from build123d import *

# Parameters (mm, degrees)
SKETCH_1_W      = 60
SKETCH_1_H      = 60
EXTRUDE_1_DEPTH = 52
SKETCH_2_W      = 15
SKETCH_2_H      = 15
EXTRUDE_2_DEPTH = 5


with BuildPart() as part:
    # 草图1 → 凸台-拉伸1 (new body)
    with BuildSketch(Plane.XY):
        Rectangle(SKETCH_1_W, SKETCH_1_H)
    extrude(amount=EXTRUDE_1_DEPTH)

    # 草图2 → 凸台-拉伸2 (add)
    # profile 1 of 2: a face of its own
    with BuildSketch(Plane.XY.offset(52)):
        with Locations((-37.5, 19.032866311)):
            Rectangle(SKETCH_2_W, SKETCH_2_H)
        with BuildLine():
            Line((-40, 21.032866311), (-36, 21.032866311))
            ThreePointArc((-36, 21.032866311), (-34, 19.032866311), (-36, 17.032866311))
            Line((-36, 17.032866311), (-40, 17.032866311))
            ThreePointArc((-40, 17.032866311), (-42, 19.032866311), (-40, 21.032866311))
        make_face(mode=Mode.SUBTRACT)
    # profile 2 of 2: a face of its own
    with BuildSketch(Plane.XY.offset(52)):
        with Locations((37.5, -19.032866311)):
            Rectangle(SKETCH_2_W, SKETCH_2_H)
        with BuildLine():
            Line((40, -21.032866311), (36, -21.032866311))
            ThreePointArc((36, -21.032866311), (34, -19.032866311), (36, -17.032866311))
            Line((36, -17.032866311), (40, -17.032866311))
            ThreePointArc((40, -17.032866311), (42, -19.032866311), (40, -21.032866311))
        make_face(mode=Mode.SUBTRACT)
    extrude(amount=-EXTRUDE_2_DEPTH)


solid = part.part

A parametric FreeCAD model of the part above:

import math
import FreeCAD as App
import Part
import Sketcher
from FreeCAD import Vector

doc = App.newDocument("Part")
body = doc.addObject("PartDesign::Body", "Body")

sketch1 = doc.addObject("Sketcher::SketchObject", "Sketch")
body.addObject(sketch1)
sketch1.AttachmentSupport = (doc.XY_Plane, [""])
sketch1.MapMode = "FlatFace"
sketch1.addGeometry([
    Part.LineSegment(Vector(-30, 30, 0), Vector(-30, -30, 0)),
    Part.LineSegment(Vector(-30, -30, 0), Vector(30, -30, 0)),
    Part.LineSegment(Vector(30, -30, 0), Vector(30, 30, 0)),
    Part.LineSegment(Vector(30, 30, 0), Vector(-30, 30, 0)),
], False)
sketch1.addConstraint([
    Sketcher.Constraint("Coincident", 0, 2, 1, 1),
    Sketcher.Constraint("Coincident", 1, 2, 2, 1),
    Sketcher.Constraint("Coincident", 2, 2, 3, 1),
    Sketcher.Constraint("Coincident", 3, 2, 0, 1),
    Sketcher.Constraint("Vertical", 0),
    Sketcher.Constraint("Horizontal", 1),
    Sketcher.Constraint("Vertical", 2),
    Sketcher.Constraint("Horizontal", 3),
    Sketcher.Constraint("Symmetric", 0, 2, 2, 2, -1, 1),
    Sketcher.Constraint("Equal", 3, 0),
    Sketcher.Constraint("DistanceX", 1, 1, 1, 2, 60.0),
])
pad1 = doc.addObject("PartDesign::Pad", "Pad")
body.addObject(pad1)
pad1.Profile = sketch1
pad1.Length = 52

sketch2 = doc.addObject("Sketcher::SketchObject", "Sketch001")
body.addObject(sketch2)
sketch2.AttachmentSupport = (doc.XY_Plane, [""])
sketch2.MapMode = "FlatFace"
sketch2.AttachmentOffset = App.Placement(Vector(0, 0, 52), App.Rotation())
sketch2.addGeometry([
    Part.LineSegment(Vector(-45, 26.532866, 0), Vector(-45, 11.532866, 0)),
    Part.LineSegment(Vector(-45, 11.532866, 0), Vector(-30, 11.532866, 0)),
    Part.LineSegment(Vector(-30, 11.532866, 0), Vector(-30, 26.532866, 0)),
    Part.LineSegment(Vector(-30, 26.532866, 0), Vector(-45, 26.532866, 0)),
    Part.ArcOfCircle(Part.Circle(Vector(-40, 19.032866, 0), Vector(0, 0, 1), 2), math.radians(90), math.radians(270)),
    Part.LineSegment(Vector(-40, 21.032866, 0), Vector(-36, 21.032866, 0)),
    Part.ArcOfCircle(Part.Circle(Vector(-36, 19.032866, 0), Vector(0, 0, 1), 2), math.radians(-90), math.radians(90)),
    Part.LineSegment(Vector(-36, 17.032866, 0), Vector(-40, 17.032866, 0)),
    Part.LineSegment(Vector(30, -11.532866, 0), Vector(30, -26.532866, 0)),
    Part.LineSegment(Vector(30, -26.532866, 0), Vector(45, -26.532866, 0)),
    Part.LineSegment(Vector(45, -26.532866, 0), Vector(45, -11.532866, 0)),
    Part.LineSegment(Vector(45, -11.532866, 0), Vector(30, -11.532866, 0)),
    Part.ArcOfCircle(Part.Circle(Vector(40, -19.032866, 0), Vector(0, 0, 1), 2), math.radians(-90), math.radians(90)),
    Part.LineSegment(Vector(40, -21.032866, 0), Vector(36, -21.032866, 0)),
    Part.ArcOfCircle(Part.Circle(Vector(36, -19.032866, 0), Vector(0, 0, 1), 2), math.radians(90), math.radians(270)),
    Part.LineSegment(Vector(36, -17.032866, 0), Vector(40, -17.032866, 0)),
], False)
sketch2.addConstraint([
    Sketcher.Constraint("Coincident", 0, 2, 1, 1),
    Sketcher.Constraint("Coincident", 1, 2, 2, 1),
    Sketcher.Constraint("Coincident", 2, 2, 3, 1),
    Sketcher.Constraint("Coincident", 3, 2, 0, 1),
    Sketcher.Constraint("Tangent", 4, 1, 5, 1),
    Sketcher.Constraint("Tangent", 5, 2, 6, 2),
    Sketcher.Constraint("Tangent", 6, 1, 7, 1),
    Sketcher.Constraint("Tangent", 7, 2, 4, 2),
    Sketcher.Constraint("Coincident", 8, 2, 9, 1),
    Sketcher.Constraint("Coincident", 9, 2, 10, 1),
    Sketcher.Constraint("Coincident", 10, 2, 11, 1),
    Sketcher.Constraint("Coincident", 11, 2, 8, 1),
    Sketcher.Constraint("Tangent", 12, 1, 13, 1),
    Sketcher.Constraint("Tangent", 13, 2, 14, 2),
    Sketcher.Constraint("Tangent", 14, 1, 15, 1),
    Sketcher.Constraint("Tangent", 15, 2, 12, 2),
    Sketcher.Constraint("Vertical", 0),
    Sketcher.Constraint("Horizontal", 1),
    Sketcher.Constraint("Vertical", 2),
    Sketcher.Constraint("Horizontal", 3),
    Sketcher.Constraint("Horizontal", 5),
    Sketcher.Constraint("Horizontal", 7),
    Sketcher.Constraint("Vertical", 8),
    Sketcher.Constraint("Horizontal", 9),
    Sketcher.Constraint("Vertical", 10),
    Sketcher.Constraint("Horizontal", 11),
    Sketcher.Constraint("Horizontal", 13),
    Sketcher.Constraint("Horizontal", 15),
    Sketcher.Constraint("Equal", 6, 12),
    Sketcher.Constraint("Symmetric", 4, 3, 12, 3, -1, 1),
    Sketcher.Constraint("Symmetric", 2, 2, 8, 2, -1, 1),
    Sketcher.Constraint("Symmetric", 0, 2, 10, 2, -1, 1),
    Sketcher.Constraint("Equal", 7, 13),
    Sketcher.Constraint("Equal", 11, 0),
    Sketcher.Constraint("Radius", 4, 2.0),
    Sketcher.Constraint("DistanceX", 1, 1, 1, 2, 15.0),
    Sketcher.Constraint("DistanceX", 5, 1, 5, 2, 4.0),
    Sketcher.Constraint("DistanceX", 4, 3, -1, 1, 40.0),
    Sketcher.Constraint("DistanceX", 0, 2, -1, 1, 45.0),
    Sketcher.Constraint("DistanceY", 0, 2, 4, 3, 7.5),
    Sketcher.Constraint("DistanceY", -1, 1, 4, 3, 19.032866),
])
pad2 = doc.addObject("PartDesign::Pad", "Pad001")
body.addObject(pad2)
pad2.Profile = sketch2
pad2.Length = 5
pad2.Reversed = True

doc.recompute()
